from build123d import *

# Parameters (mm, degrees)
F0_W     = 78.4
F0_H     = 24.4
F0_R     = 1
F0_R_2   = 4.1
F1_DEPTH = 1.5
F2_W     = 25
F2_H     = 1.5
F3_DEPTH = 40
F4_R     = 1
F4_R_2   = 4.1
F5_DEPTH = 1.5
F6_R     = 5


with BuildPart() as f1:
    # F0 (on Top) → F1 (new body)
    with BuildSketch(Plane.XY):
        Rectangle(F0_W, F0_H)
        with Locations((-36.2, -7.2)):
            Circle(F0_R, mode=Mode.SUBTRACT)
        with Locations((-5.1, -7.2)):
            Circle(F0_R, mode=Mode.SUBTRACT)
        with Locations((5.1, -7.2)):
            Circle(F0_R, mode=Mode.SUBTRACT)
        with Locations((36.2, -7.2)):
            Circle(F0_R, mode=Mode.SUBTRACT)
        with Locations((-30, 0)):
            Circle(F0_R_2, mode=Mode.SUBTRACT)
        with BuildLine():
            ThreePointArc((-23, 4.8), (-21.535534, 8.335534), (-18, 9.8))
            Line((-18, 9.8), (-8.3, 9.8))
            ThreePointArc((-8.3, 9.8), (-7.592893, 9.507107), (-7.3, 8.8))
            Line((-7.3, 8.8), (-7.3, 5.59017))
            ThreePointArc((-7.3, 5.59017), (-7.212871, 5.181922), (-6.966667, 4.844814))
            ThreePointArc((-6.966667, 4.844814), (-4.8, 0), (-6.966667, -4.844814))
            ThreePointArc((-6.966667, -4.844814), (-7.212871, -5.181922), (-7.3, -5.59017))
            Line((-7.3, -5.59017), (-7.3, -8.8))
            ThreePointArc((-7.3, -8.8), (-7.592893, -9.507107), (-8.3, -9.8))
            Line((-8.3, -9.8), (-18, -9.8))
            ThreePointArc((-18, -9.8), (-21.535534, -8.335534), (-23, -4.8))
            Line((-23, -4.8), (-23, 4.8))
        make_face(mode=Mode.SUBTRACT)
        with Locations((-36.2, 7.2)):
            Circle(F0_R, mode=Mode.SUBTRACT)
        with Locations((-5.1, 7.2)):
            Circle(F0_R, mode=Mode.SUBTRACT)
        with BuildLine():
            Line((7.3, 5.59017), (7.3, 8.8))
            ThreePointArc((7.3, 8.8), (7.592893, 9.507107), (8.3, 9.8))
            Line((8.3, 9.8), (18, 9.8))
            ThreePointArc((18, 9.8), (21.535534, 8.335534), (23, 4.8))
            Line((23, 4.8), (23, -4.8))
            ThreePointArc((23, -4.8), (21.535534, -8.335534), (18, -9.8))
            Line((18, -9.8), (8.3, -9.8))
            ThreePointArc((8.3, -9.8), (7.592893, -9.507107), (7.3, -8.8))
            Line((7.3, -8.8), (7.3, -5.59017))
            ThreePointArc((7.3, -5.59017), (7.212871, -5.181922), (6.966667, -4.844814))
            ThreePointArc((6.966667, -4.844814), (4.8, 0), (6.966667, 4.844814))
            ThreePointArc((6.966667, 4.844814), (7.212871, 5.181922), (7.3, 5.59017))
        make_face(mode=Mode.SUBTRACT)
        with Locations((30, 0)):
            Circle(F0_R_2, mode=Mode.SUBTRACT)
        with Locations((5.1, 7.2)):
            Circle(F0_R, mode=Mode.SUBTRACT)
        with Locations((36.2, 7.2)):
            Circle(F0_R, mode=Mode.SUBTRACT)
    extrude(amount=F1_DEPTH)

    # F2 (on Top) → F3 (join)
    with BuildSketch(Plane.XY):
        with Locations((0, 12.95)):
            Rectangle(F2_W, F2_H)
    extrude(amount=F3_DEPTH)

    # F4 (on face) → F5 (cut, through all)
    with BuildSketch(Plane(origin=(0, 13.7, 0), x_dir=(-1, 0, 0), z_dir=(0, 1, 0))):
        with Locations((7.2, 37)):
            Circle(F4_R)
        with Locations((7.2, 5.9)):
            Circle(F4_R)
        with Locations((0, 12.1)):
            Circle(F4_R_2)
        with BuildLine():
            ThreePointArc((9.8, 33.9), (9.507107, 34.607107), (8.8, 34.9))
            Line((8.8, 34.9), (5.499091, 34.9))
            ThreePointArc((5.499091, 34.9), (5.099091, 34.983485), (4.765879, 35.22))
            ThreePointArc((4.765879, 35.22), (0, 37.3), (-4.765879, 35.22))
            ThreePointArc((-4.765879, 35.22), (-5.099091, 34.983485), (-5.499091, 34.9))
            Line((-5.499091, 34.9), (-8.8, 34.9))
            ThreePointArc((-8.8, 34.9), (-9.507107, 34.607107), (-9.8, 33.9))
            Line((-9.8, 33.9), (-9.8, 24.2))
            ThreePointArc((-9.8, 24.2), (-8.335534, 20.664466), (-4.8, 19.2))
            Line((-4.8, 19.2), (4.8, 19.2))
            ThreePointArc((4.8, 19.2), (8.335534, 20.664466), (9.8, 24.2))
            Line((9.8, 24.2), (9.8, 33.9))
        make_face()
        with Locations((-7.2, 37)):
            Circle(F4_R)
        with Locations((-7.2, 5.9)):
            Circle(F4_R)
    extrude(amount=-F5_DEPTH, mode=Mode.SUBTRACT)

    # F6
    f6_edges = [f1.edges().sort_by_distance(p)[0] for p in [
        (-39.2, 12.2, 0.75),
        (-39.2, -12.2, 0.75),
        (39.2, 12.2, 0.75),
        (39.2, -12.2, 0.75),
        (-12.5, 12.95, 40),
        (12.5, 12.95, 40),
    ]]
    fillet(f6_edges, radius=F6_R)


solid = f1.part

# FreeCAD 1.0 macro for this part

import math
import FreeCAD as App
import Part
import Sketcher
from FreeCAD import Vector


def edges_at(feature, points):
    """Names of the edges that pass closest to the given points."""
    edges = feature.Shape.Edges
    near = lambda p: min(range(len(edges)), key=lambda i: edges[i].distToShape(Part.Vertex(*p))[0])
    return sorted({f"Edge{near(p) + 1}" for p in points})

doc = App.newDocument("Part")
body = doc.addObject("PartDesign::Body", "Body")

sketch1 = doc.addObject("Sketcher::SketchObject", "Sketch")
body.addObject(sketch1)
sketch1.AttachmentSupport = (doc.XY_Plane, [""])
sketch1.MapMode = "FlatFace"
sketch1.addGeometry(Part.LineSegment(Vector(-39.2, 12.2, 0), Vector(-39.2, -12.2, 0)), False)
sketch1.addGeometry(Part.LineSegment(Vector(-39.2, -12.2, 0), Vector(39.2, -12.2, 0)), False)
sketch1.addGeometry(Part.LineSegment(Vector(39.2, -12.2, 0), Vector(39.2, 12.2, 0)), False)
sketch1.addGeometry(Part.LineSegment(Vector(39.2, 12.2, 0), Vector(-39.2, 12.2, 0)), False)
sketch1.addGeometry(Part.Circle(Vector(-36.2, -7.2, 0), Vector(0, 0, 1), 1), False)
sketch1.addGeometry(Part.Circle(Vector(-5.1, -7.2, 0), Vector(0, 0, 1), 1), False)
sketch1.addGeometry(Part.Circle(Vector(5.1, -7.2, 0), Vector(0, 0, 1), 1), False)
sketch1.addGeometry(Part.Circle(Vector(36.2, -7.2, 0), Vector(0, 0, 1), 1), False)
sketch1.addGeometry(Part.Circle(Vector(-30, 0, 0), Vector(0, 0, 1), 4.1), False)
sketch1.addGeometry(Part.LineSegment(Vector(-23, -4.8, 0), Vector(-23, 4.8, 0)), False)
sketch1.addGeometry(Part.ArcOfCircle(Part.Circle(Vector(-18, 4.8, 0), Vector(0, 0, 1), 5), math.radians(89.999996), math.radians(180.000004)), False)
sketch1.addGeometry(Part.LineSegment(Vector(-18, 9.8, 0), Vector(-8.3, 9.8, 0)), False)
sketch1.addGeometry(Part.ArcOfCircle(Part.Circle(Vector(-8.299999, 8.800001, 0), Vector(0, 0, 1), 0.999999), math.radians(-0.000043), math.radians(90.000043)), False)
sketch1.addGeometry(Part.LineSegment(Vector(-7.3, 8.8, 0), Vector(-7.3, 5.59017, 0)), False)
sketch1.addGeometry(Part.ArcOfCircle(Part.Circle(Vector(-6.299998, 5.590171, 0), Vector(0, 0, 1), 1.000002), math.radians(-179.99997), math.radians(-131.810388)), False)
sketch1.addGeometry(Part.ArcOfCircle(Part.Circle(Vector(-11.299999, 0, 0), Vector(0, 0, 1), 6.499999), math.radians(-48.189691), math.radians(48.189691)), False)
sketch1.addGeometry(Part.ArcOfCircle(Part.Circle(Vector(-6.299998, -5.590171, 0), Vector(0, 0, 1), 1.000002), math.radians(131.810388), math.radians(179.99997)), False)
sketch1.addGeometry(Part.LineSegment(Vector(-7.3, -5.59017, 0), Vector(-7.3, -8.8, 0)), False)
sketch1.addGeometry(Part.ArcOfCircle(Part.Circle(Vector(-8.299999, -8.800001, 0), Vector(0, 0, 1), 0.999999), math.radians(-90.000043), math.radians(0.000043)), False)
sketch1.addGeometry(Part.LineSegment(Vector(-8.3, -9.8, 0), Vector(-18, -9.8, 0)), False)
sketch1.addGeometry(Part.ArcOfCircle(Part.Circle(Vector(-18, -4.8, 0), Vector(0, 0, 1), 5), math.radians(179.999996), math.radians(270.000004)), False)
sketch1.addGeometry(Part.Circle(Vector(-36.2, 7.2, 0), Vector(0, 0, 1), 1), False)
sketch1.addGeometry(Part.Circle(Vector(-5.1, 7.2, 0), Vector(0, 0, 1), 1), False)
sketch1.addGeometry(Part.ArcOfCircle(Part.Circle(Vector(6.299998, 5.590171, 0), Vector(0, 0, 1), 1.000002), math.radians(-48.189612), math.radians(-0.00003)), False)
sketch1.addGeometry(Part.LineSegment(Vector(7.3, 5.59017, 0), Vector(7.3, 8.8, 0)), False)
sketch1.addGeometry(Part.ArcOfCircle(Part.Circle(Vector(8.299999, 8.800001, 0), Vector(0, 0, 1), 0.999999), math.radians(89.999957), math.radians(180.000043)), False)
sketch1.addGeometry(Part.LineSegment(Vector(8.3, 9.8, 0), Vector(18, 9.8, 0)), False)
sketch1.addGeometry(Part.ArcOfCircle(Part.Circle(Vector(18, 4.8, 0), Vector(0, 0, 1), 5), math.radians(-0.000004), math.radians(90.000004)), False)
sketch1.addGeometry(Part.LineSegment(Vector(23, 4.8, 0), Vector(23, -4.8, 0)), False)
sketch1.addGeometry(Part.ArcOfCircle(Part.Circle(Vector(18, -4.8, 0), Vector(0, 0, 1), 5), math.radians(-90.000004), math.radians(0.000004)), False)
sketch1.addGeometry(Part.LineSegment(Vector(18, -9.8, 0), Vector(8.3, -9.8, 0)), False)
sketch1.addGeometry(Part.ArcOfCircle(Part.Circle(Vector(8.299999, -8.800001, 0), Vector(0, 0, 1), 0.999999), math.radians(179.999957), math.radians(270.000043)), False)
sketch1.addGeometry(Part.LineSegment(Vector(7.3, -8.8, 0), Vector(7.3, -5.59017, 0)), False)
sketch1.addGeometry(Part.ArcOfCircle(Part.Circle(Vector(6.299998, -5.590171, 0), Vector(0, 0, 1), 1.000002), math.radians(0.00003), math.radians(48.189612)), False)
sketch1.addGeometry(Part.ArcOfCircle(Part.Circle(Vector(11.299999, 0, 0), Vector(0, 0, 1), 6.499999), math.radians(131.810309), math.radians(228.189691)), False)
sketch1.addGeometry(Part.Circle(Vector(30, 0, 0), Vector(0, 0, 1), 4.1), False)
sketch1.addGeometry(Part.Circle(Vector(5.1, 7.2, 0), Vector(0, 0, 1), 1), False)
sketch1.addGeometry(Part.Circle(Vector(36.2, 7.2, 0), Vector(0, 0, 1), 1), False)
sketch1.addConstraint(Sketcher.Constraint("Coincident", 0, 2, 1, 1))
sketch1.addConstraint(Sketcher.Constraint("Coincident", 1, 2, 2, 1))
sketch1.addConstraint(Sketcher.Constraint("Coincident", 2, 2, 3, 1))
sketch1.addConstraint(Sketcher.Constraint("Coincident", 3, 2, 0, 1))
sketch1.addConstraint(Sketcher.Constraint("Tangent", 9, 2, 10, 2))
sketch1.addConstraint(Sketcher.Constraint("Tangent", 10, 1, 11, 1))
sketch1.addConstraint(Sketcher.Constraint("Tangent", 11, 2, 12, 2))
sketch1.addConstraint(Sketcher.Constraint("Tangent", 12, 1, 13, 1))
sketch1.addConstraint(Sketcher.Constraint("Tangent", 13, 2, 14, 1))
sketch1.addConstraint(Sketcher.Constraint("Tangent", 14, 2, 15, 2))
sketch1.addConstraint(Sketcher.Constraint("Tangent", 15, 1, 16, 1))
sketch1.addConstraint(Sketcher.Constraint("Tangent", 16, 2, 17, 1))
sketch1.addConstraint(Sketcher.Constraint("Tangent", 17, 2, 18, 2))
sketch1.addConstraint(Sketcher.Constraint("Tangent", 18, 1, 19, 1))
sketch1.addConstraint(Sketcher.Constraint("Tangent", 19, 2, 20, 2))
sketch1.addConstraint(Sketcher.Constraint("Tangent", 20, 1, 9, 1))
sketch1.addConstraint(Sketcher.Constraint("Tangent", 23, 2, 24, 1))
sketch1.addConstraint(Sketcher.Constraint("Tangent", 24, 2, 25, 2))
sketch1.addConstraint(Sketcher.Constraint("Tangent", 25, 1, 26, 1))
sketch1.addConstraint(Sketcher.Constraint("Tangent", 26, 2, 27, 2))
sketch1.addConstraint(Sketcher.Constraint("Tangent", 27, 1, 28, 1))
sketch1.addConstraint(Sketcher.Constraint("Tangent", 28, 2, 29, 2))
sketch1.addConstraint(Sketcher.Constraint("Tangent", 29, 1, 30, 1))
sketch1.addConstraint(Sketcher.Constraint("Tangent", 30, 2, 31, 2))
sketch1.addConstraint(Sketcher.Constraint("Tangent", 31, 1, 32, 1))
sketch1.addConstraint(Sketcher.Constraint("Tangent", 32, 2, 33, 1))
sketch1.addConstraint(Sketcher.Constraint("Tangent", 33, 2, 34, 2))
sketch1.addConstraint(Sketcher.Constraint("Tangent", 34, 1, 23, 1))
sketch1.addConstraint(Sketcher.Constraint("Vertical", 0))
sketch1.addConstraint(Sketcher.Constraint("Horizontal", 1))
sketch1.addConstraint(Sketcher.Constraint("Vertical", 2))
sketch1.addConstraint(Sketcher.Constraint("Horizontal", 3))
sketch1.addConstraint(Sketcher.Constraint("Vertical", 9))
sketch1.addConstraint(Sketcher.Constraint("Horizontal", 11))
sketch1.addConstraint(Sketcher.Constraint("Vertical", 13))
sketch1.addConstraint(Sketcher.Constraint("Vertical", 17))
sketch1.addConstraint(Sketcher.Constraint("Horizontal", 19))
sketch1.addConstraint(Sketcher.Constraint("Vertical", 24))
sketch1.addConstraint(Sketcher.Constraint("Horizontal", 26))
sketch1.addConstraint(Sketcher.Constraint("Vertical", 28))
sketch1.addConstraint(Sketcher.Constraint("Horizontal", 30))
sketch1.addConstraint(Sketcher.Constraint("Vertical", 32))
sketch1.addConstraint(Sketcher.Constraint("Equal", 4, 5))
sketch1.addConstraint(Sketcher.Constraint("Equal", 5, 6))
sketch1.addConstraint(Sketcher.Constraint("Equal", 6, 7))
sketch1.addConstraint(Sketcher.Constraint("Equal", 7, 12))
sketch1.addConstraint(Sketcher.Constraint("Equal", 7, 14))
sketch1.addConstraint(Sketcher.Constraint("Equal", 14, 16))
sketch1.addConstraint(Sketcher.Constraint("Equal", 12, 18))
sketch1.addConstraint(Sketcher.Constraint("Equal", 10, 20))
sketch1.addConstraint(Sketcher.Constraint("Equal", 18, 21))
sketch1.addConstraint(Sketcher.Constraint("Equal", 21, 22))
sketch1.addConstraint(Sketcher.Constraint("Equal", 22, 23))
sketch1.addConstraint(Sketcher.Constraint("Equal", 22, 25))
sketch1.addConstraint(Sketcher.Constraint("Equal", 20, 27))
sketch1.addConstraint(Sketcher.Constraint("Equal", 27, 29))
sketch1.addConstraint(Sketcher.Constraint("Equal", 25, 31))
sketch1.addConstraint(Sketcher.Constraint("Equal", 23, 33))
sketch1.addConstraint(Sketcher.Constraint("Equal", 15, 34))
sketch1.addConstraint(Sketcher.Constraint("Equal", 8, 35))
sketch1.addConstraint(Sketcher.Constraint("Equal", 33, 36))
sketch1.addConstraint(Sketcher.Constraint("Equal", 36, 37))
sketch1.addConstraint(Sketcher.Constraint("Symmetric", 7, 3, 21, 3, -1, 1))
sketch1.addConstraint(Sketcher.Constraint("Symmetric", 6, 3, 22, 3, -1, 1))
sketch1.addConstraint(Sketcher.Constraint("Symmetric", 16, 3, 23, 3, -1, 1))
sketch1.addConstraint(Sketcher.Constraint("Symmetric", 20, 3, 27, 3, -1, 1))
sketch1.addConstraint(Sketcher.Constraint("Symmetric", 12, 3, 31, 3, -1, 1))
sketch1.addConstraint(Sketcher.Constraint("Symmetric", 8, 3, 35, 3, -1, 1))
sketch1.addConstraint(Sketcher.Constraint("Symmetric", 5, 3, 36, 3, -1, 1))
sketch1.addConstraint(Sketcher.Constraint("Symmetric", 4, 3, 37, 3, -1, 1))
sketch1.addConstraint(Sketcher.Constraint("Symmetric", 0, 2, 2, 2, -1, 1))
sketch1.addConstraint(Sketcher.Constraint("Symmetric", 5, 3, 6, 3, -2))
sketch1.addConstraint(Sketcher.Constraint("Symmetric", 4, 3, 7, 3, -2))
sketch1.addConstraint(Sketcher.Constraint("Symmetric", 14, 3, 23, 3, -2))
sketch1.addConstraint(Sketcher.Constraint("PointOnObject", 8, 3, -1))
sketch1.addConstraint(Sketcher.Constraint("PointOnObject", 34, 3, -1))
sketch1.addConstraint(Sketcher.Constraint("Horizontal", 4, 3, 5, 3))
sketch1.addConstraint(Sketcher.Constraint("Horizontal", 12, 3, 25, 3))
sketch1.addConstraint(Sketcher.Constraint("Diameter", 4, 2.0))
sketch1.addConstraint(Sketcher.Constraint("Radius", 10, 5.0))
sketch1.addConstraint(Sketcher.Constraint("Diameter", 8, 8.2))
sketch1.addConstraint(Sketcher.Constraint("Radius", 15, 6.499999))
sketch1.addConstraint(Sketcher.Constraint("DistanceX", 1, 1, 1, 2, 78.4))
sketch1.addConstraint(Sketcher.Constraint("DistanceX", 11, 1, 11, 2, 9.7))
sketch1.addConstraint(Sketcher.Constraint("DistanceY", 0, 2, 0, 1, 24.4))
sketch1.addConstraint(Sketcher.Constraint("DistanceY", 9, 1, 9, 2, 9.6))
sketch1.addConstraint(Sketcher.Constraint("DistanceX", 8, 3, -1, 1, 30.0))
sketch1.addConstraint(Sketcher.Constraint("DistanceX", 10, 3, -1, 1, 18.0))
sketch1.addConstraint(Sketcher.Constraint("DistanceY", 5, 3, 10, 3, 12.0))
sketch1.addConstraint(Sketcher.Constraint("DistanceX", 15, 3, 14, 3, 5.000001))
sketch1.addConstraint(Sketcher.Constraint("DistanceX", 0, 2, 4, 3, 3.0))
sketch1.addConstraint(Sketcher.Constraint("DistanceX", 5, 3, -1, 1, 5.1))
pad1 = doc.addObject("PartDesign::Pad", "Pad")
body.addObject(pad1)
pad1.Profile = sketch1
pad1.Length = 1.5

sketch2 = doc.addObject("Sketcher::SketchObject", "Sketch001")
body.addObject(sketch2)
sketch2.AttachmentSupport = (doc.XY_Plane, [""])
sketch2.MapMode = "FlatFace"
sketch2.addGeometry(Part.LineSegment(Vector(-12.5, 13.7, 0), Vector(-12.5, 12.2, 0)), False)
sketch2.addGeometry(Part.LineSegment(Vector(-12.5, 12.2, 0), Vector(12.5, 12.2, 0)), False)
sketch2.addGeometry(Part.LineSegment(Vector(12.5, 12.2, 0), Vector(12.5, 13.7, 0)), False)
sketch2.addGeometry(Part.LineSegment(Vector(12.5, 13.7, 0), Vector(-12.5, 13.7, 0)), False)
sketch2.addConstraint(Sketcher.Constraint("Coincident", 0, 2, 1, 1))
sketch2.addConstraint(Sketcher.Constraint("Coincident", 1, 2, 2, 1))
sketch2.addConstraint(Sketcher.Constraint("Coincident", 2, 2, 3, 1))
sketch2.addConstraint(Sketcher.Constraint("Coincident", 3, 2, 0, 1))
sketch2.addConstraint(Sketcher.Constraint("Vertical", 0))
sketch2.addConstraint(Sketcher.Constraint("Horizontal", 1))
sketch2.addConstraint(Sketcher.Constraint("Vertical", 2))
sketch2.addConstraint(Sketcher.Constraint("Horizontal", 3))
sketch2.addConstraint(Sketcher.Constraint("DistanceX", 1, 1, 1, 2, 25.0))
sketch2.addConstraint(Sketcher.Constraint("DistanceY", 0, 2, 0, 1, 1.5))
sketch2.addConstraint(Sketcher.Constraint("DistanceX", 0, 2, -1, 1, 12.5))
sketch2.addConstraint(Sketcher.Constraint("DistanceY", -1, 1, 0, 2, 12.2))
pad2 = doc.addObject("PartDesign::Pad", "Pad001")
body.addObject(pad2)
pad2.Profile = sketch2
pad2.Length = 40

sketch3 = doc.addObject("Sketcher::SketchObject", "Sketch002")
body.addObject(sketch3)
sketch3.AttachmentSupport = (doc.XZ_Plane, [""])
sketch3.MapMode = "FlatFace"
sketch3.AttachmentOffset = App.Placement(Vector(0, 0, -13.7), App.Rotation())
sketch3.addGeometry(Part.Circle(Vector(-7.2, 37, 0), Vector(0, 0, 1), 1), False)
sketch3.addGeometry(Part.Circle(Vector(-7.2, 5.9, 0), Vector(0, 0, 1), 1), False)
sketch3.addGeometry(Part.Circle(Vector(0, 12.1, 0), Vector(0, 0, 1), 4.1), False)
sketch3.addGeometry(Part.ArcOfCircle(Part.Circle(Vector(-8.800001, 33.900001, 0), Vector(0, 0, 1), 0.999999), math.radians(89.999957), math.radians(180.000043)), False)
sketch3.addGeometry(Part.LineSegment(Vector(-8.8, 34.9, 0), Vector(-5.499091, 34.9, 0)), False)
sketch3.addGeometry(Part.ArcOfCircle(Part.Circle(Vector(-5.499092, 35.900001, 0), Vector(0, 0, 1), 1.000001), math.radians(-89.999971), math.radians(-42.843666)), False)
sketch3.addGeometry(Part.ArcOfCircle(Part.Circle(Vector(0, 30.799999, 0), Vector(0, 0, 1), 6.500001), math.radians(42.843645), math.radians(137.156355)), False)
sketch3.addGeometry(Part.ArcOfCircle(Part.Circle(Vector(5.499092, 35.900001, 0), Vector(0, 0, 1), 1.000001), math.radians(-137.156334), math.radians(-90.000029)), False)
sketch3.addGeometry(Part.LineSegment(Vector(5.499091, 34.9, 0), Vector(8.8, 34.9, 0)), False)
sketch3.addGeometry(Part.ArcOfCircle(Part.Circle(Vector(8.800001, 33.900001, 0), Vector(0, 0, 1), 0.999999), math.radians(-0.000043), math.radians(90.000043)), False)
sketch3.addGeometry(Part.LineSegment(Vector(9.8, 33.9, 0), Vector(9.8, 24.2, 0)), False)
sketch3.addGeometry(Part.ArcOfCircle(Part.Circle(Vector(4.8, 24.2, 0), Vector(0, 0, 1), 5), math.radians(-90.000004), math.radians(0.000004)), False)
sketch3.addGeometry(Part.LineSegment(Vector(4.8, 19.2, 0), Vector(-4.8, 19.2, 0)), False)
sketch3.addGeometry(Part.ArcOfCircle(Part.Circle(Vector(-4.8, 24.2, 0), Vector(0, 0, 1), 5), math.radians(179.999996), math.radians(270.000004)), False)
sketch3.addGeometry(Part.LineSegment(Vector(-9.8, 24.2, 0), Vector(-9.8, 33.9, 0)), False)
sketch3.addGeometry(Part.Circle(Vector(7.2, 37, 0), Vector(0, 0, 1), 1), False)
sketch3.addGeometry(Part.Circle(Vector(7.2, 5.9, 0), Vector(0, 0, 1), 1), False)
sketch3.addConstraint(Sketcher.Constraint("Tangent", 3, 1, 4, 1))
sketch3.addConstraint(Sketcher.Constraint("Tangent", 4, 2, 5, 1))
sketch3.addConstraint(Sketcher.Constraint("Tangent", 5, 2, 6, 2))
sketch3.addConstraint(Sketcher.Constraint("Tangent", 6, 1, 7, 1))
sketch3.addConstraint(Sketcher.Constraint("Tangent", 7, 2, 8, 1))
sketch3.addConstraint(Sketcher.Constraint("Tangent", 8, 2, 9, 2))
sketch3.addConstraint(Sketcher.Constraint("Tangent", 9, 1, 10, 1))
sketch3.addConstraint(Sketcher.Constraint("Tangent", 10, 2, 11, 2))
sketch3.addConstraint(Sketcher.Constraint("Tangent", 11, 1, 12, 1))
sketch3.addConstraint(Sketcher.Constraint("Tangent", 12, 2, 13, 2))
sketch3.addConstraint(Sketcher.Constraint("Tangent", 13, 1, 14, 1))
sketch3.addConstraint(Sketcher.Constraint("Tangent", 14, 2, 3, 2))
sketch3.addConstraint(Sketcher.Constraint("Horizontal", 4))
sketch3.addConstraint(Sketcher.Constraint("Horizontal", 8))
sketch3.addConstraint(Sketcher.Constraint("Vertical", 10))
sketch3.addConstraint(Sketcher.Constraint("Horizontal", 12))
sketch3.addConstraint(Sketcher.Constraint("Vertical", 14))
sketch3.addConstraint(Sketcher.Constraint("Equal", 0, 1))
sketch3.addConstraint(Sketcher.Constraint("Equal", 1, 3))
sketch3.addConstraint(Sketcher.Constraint("Equal", 3, 5))
sketch3.addConstraint(Sketcher.Constraint("Equal", 5, 7))
sketch3.addConstraint(Sketcher.Constraint("Equal", 7, 9))
sketch3.addConstraint(Sketcher.Constraint("Equal", 11, 13))
sketch3.addConstraint(Sketcher.Constraint("Equal", 9, 15))
sketch3.addConstraint(Sketcher.Constraint("Equal", 15, 16))
sketch3.addConstraint(Sketcher.Constraint("Symmetric", 5, 3, 7, 3, -2))
sketch3.addConstraint(Sketcher.Constraint("Symmetric", 0, 3, 15, 3, -2))
sketch3.addConstraint(Sketcher.Constraint("Symmetric", 1, 3, 16, 3, -2))
sketch3.addConstraint(Sketcher.Constraint("PointOnObject", 2, 3, -2))
sketch3.addConstraint(Sketcher.Constraint("Vertical", 0, 3, 1, 3))
sketch3.addConstraint(Sketcher.Constraint("Equal", 4, 8))
sketch3.addConstraint(Sketcher.Constraint("Diameter", 0, 2.0))
sketch3.addConstraint(Sketcher.Constraint("Radius", 11, 5.0))
sketch3.addConstraint(Sketcher.Constraint("Diameter", 2, 8.2))
sketch3.addConstraint(Sketcher.Constraint("Radius", 6, 6.500001))
sketch3.addConstraint(Sketcher.Constraint("DistanceX", 12, 2, 12, 1, 9.6))
sketch3.addConstraint(Sketcher.Constraint("DistanceY", 10, 2, 10, 1, 9.7))
sketch3.addConstraint(Sketcher.Constraint("DistanceY", -1, 1, 0, 3, 37.0))
sketch3.addConstraint(Sketcher.Constraint("DistanceY", 1, 3, 3, 3, 28.000001))
sketch3.addConstraint(Sketcher.Constraint("DistanceX", 0, 3, 9, 3, 16.000001))
sketch3.addConstraint(Sketcher.Constraint("DistanceY", -1, 1, 1, 3, 5.9))
sketch3.addConstraint(Sketcher.Constraint("DistanceY", -1, 1, 2, 3, 12.1))
sketch3.addConstraint(Sketcher.Constraint("DistanceY", -1, 1, 6, 3, 30.799999))
pocket1 = doc.addObject("PartDesign::Pocket", "Pocket")
body.addObject(pocket1)
pocket1.Profile = sketch3
pocket1.Type = "ThroughAll"
pocket1.Reversed = True
doc.recompute()

fillet = doc.addObject("PartDesign::Fillet", "Fillet")
body.addObject(fillet)
fillet.Base = (pocket1, edges_at(pocket1, [
    (-39.2, 12.2, 0.75),
    (-39.2, -12.2, 0.75),
    (39.2, 12.2, 0.75),
    (39.2, -12.2, 0.75),
    (-12.5, 12.95, 40),
    (12.5, 12.95, 40),
]))
fillet.Radius = 5

doc.recompute()
